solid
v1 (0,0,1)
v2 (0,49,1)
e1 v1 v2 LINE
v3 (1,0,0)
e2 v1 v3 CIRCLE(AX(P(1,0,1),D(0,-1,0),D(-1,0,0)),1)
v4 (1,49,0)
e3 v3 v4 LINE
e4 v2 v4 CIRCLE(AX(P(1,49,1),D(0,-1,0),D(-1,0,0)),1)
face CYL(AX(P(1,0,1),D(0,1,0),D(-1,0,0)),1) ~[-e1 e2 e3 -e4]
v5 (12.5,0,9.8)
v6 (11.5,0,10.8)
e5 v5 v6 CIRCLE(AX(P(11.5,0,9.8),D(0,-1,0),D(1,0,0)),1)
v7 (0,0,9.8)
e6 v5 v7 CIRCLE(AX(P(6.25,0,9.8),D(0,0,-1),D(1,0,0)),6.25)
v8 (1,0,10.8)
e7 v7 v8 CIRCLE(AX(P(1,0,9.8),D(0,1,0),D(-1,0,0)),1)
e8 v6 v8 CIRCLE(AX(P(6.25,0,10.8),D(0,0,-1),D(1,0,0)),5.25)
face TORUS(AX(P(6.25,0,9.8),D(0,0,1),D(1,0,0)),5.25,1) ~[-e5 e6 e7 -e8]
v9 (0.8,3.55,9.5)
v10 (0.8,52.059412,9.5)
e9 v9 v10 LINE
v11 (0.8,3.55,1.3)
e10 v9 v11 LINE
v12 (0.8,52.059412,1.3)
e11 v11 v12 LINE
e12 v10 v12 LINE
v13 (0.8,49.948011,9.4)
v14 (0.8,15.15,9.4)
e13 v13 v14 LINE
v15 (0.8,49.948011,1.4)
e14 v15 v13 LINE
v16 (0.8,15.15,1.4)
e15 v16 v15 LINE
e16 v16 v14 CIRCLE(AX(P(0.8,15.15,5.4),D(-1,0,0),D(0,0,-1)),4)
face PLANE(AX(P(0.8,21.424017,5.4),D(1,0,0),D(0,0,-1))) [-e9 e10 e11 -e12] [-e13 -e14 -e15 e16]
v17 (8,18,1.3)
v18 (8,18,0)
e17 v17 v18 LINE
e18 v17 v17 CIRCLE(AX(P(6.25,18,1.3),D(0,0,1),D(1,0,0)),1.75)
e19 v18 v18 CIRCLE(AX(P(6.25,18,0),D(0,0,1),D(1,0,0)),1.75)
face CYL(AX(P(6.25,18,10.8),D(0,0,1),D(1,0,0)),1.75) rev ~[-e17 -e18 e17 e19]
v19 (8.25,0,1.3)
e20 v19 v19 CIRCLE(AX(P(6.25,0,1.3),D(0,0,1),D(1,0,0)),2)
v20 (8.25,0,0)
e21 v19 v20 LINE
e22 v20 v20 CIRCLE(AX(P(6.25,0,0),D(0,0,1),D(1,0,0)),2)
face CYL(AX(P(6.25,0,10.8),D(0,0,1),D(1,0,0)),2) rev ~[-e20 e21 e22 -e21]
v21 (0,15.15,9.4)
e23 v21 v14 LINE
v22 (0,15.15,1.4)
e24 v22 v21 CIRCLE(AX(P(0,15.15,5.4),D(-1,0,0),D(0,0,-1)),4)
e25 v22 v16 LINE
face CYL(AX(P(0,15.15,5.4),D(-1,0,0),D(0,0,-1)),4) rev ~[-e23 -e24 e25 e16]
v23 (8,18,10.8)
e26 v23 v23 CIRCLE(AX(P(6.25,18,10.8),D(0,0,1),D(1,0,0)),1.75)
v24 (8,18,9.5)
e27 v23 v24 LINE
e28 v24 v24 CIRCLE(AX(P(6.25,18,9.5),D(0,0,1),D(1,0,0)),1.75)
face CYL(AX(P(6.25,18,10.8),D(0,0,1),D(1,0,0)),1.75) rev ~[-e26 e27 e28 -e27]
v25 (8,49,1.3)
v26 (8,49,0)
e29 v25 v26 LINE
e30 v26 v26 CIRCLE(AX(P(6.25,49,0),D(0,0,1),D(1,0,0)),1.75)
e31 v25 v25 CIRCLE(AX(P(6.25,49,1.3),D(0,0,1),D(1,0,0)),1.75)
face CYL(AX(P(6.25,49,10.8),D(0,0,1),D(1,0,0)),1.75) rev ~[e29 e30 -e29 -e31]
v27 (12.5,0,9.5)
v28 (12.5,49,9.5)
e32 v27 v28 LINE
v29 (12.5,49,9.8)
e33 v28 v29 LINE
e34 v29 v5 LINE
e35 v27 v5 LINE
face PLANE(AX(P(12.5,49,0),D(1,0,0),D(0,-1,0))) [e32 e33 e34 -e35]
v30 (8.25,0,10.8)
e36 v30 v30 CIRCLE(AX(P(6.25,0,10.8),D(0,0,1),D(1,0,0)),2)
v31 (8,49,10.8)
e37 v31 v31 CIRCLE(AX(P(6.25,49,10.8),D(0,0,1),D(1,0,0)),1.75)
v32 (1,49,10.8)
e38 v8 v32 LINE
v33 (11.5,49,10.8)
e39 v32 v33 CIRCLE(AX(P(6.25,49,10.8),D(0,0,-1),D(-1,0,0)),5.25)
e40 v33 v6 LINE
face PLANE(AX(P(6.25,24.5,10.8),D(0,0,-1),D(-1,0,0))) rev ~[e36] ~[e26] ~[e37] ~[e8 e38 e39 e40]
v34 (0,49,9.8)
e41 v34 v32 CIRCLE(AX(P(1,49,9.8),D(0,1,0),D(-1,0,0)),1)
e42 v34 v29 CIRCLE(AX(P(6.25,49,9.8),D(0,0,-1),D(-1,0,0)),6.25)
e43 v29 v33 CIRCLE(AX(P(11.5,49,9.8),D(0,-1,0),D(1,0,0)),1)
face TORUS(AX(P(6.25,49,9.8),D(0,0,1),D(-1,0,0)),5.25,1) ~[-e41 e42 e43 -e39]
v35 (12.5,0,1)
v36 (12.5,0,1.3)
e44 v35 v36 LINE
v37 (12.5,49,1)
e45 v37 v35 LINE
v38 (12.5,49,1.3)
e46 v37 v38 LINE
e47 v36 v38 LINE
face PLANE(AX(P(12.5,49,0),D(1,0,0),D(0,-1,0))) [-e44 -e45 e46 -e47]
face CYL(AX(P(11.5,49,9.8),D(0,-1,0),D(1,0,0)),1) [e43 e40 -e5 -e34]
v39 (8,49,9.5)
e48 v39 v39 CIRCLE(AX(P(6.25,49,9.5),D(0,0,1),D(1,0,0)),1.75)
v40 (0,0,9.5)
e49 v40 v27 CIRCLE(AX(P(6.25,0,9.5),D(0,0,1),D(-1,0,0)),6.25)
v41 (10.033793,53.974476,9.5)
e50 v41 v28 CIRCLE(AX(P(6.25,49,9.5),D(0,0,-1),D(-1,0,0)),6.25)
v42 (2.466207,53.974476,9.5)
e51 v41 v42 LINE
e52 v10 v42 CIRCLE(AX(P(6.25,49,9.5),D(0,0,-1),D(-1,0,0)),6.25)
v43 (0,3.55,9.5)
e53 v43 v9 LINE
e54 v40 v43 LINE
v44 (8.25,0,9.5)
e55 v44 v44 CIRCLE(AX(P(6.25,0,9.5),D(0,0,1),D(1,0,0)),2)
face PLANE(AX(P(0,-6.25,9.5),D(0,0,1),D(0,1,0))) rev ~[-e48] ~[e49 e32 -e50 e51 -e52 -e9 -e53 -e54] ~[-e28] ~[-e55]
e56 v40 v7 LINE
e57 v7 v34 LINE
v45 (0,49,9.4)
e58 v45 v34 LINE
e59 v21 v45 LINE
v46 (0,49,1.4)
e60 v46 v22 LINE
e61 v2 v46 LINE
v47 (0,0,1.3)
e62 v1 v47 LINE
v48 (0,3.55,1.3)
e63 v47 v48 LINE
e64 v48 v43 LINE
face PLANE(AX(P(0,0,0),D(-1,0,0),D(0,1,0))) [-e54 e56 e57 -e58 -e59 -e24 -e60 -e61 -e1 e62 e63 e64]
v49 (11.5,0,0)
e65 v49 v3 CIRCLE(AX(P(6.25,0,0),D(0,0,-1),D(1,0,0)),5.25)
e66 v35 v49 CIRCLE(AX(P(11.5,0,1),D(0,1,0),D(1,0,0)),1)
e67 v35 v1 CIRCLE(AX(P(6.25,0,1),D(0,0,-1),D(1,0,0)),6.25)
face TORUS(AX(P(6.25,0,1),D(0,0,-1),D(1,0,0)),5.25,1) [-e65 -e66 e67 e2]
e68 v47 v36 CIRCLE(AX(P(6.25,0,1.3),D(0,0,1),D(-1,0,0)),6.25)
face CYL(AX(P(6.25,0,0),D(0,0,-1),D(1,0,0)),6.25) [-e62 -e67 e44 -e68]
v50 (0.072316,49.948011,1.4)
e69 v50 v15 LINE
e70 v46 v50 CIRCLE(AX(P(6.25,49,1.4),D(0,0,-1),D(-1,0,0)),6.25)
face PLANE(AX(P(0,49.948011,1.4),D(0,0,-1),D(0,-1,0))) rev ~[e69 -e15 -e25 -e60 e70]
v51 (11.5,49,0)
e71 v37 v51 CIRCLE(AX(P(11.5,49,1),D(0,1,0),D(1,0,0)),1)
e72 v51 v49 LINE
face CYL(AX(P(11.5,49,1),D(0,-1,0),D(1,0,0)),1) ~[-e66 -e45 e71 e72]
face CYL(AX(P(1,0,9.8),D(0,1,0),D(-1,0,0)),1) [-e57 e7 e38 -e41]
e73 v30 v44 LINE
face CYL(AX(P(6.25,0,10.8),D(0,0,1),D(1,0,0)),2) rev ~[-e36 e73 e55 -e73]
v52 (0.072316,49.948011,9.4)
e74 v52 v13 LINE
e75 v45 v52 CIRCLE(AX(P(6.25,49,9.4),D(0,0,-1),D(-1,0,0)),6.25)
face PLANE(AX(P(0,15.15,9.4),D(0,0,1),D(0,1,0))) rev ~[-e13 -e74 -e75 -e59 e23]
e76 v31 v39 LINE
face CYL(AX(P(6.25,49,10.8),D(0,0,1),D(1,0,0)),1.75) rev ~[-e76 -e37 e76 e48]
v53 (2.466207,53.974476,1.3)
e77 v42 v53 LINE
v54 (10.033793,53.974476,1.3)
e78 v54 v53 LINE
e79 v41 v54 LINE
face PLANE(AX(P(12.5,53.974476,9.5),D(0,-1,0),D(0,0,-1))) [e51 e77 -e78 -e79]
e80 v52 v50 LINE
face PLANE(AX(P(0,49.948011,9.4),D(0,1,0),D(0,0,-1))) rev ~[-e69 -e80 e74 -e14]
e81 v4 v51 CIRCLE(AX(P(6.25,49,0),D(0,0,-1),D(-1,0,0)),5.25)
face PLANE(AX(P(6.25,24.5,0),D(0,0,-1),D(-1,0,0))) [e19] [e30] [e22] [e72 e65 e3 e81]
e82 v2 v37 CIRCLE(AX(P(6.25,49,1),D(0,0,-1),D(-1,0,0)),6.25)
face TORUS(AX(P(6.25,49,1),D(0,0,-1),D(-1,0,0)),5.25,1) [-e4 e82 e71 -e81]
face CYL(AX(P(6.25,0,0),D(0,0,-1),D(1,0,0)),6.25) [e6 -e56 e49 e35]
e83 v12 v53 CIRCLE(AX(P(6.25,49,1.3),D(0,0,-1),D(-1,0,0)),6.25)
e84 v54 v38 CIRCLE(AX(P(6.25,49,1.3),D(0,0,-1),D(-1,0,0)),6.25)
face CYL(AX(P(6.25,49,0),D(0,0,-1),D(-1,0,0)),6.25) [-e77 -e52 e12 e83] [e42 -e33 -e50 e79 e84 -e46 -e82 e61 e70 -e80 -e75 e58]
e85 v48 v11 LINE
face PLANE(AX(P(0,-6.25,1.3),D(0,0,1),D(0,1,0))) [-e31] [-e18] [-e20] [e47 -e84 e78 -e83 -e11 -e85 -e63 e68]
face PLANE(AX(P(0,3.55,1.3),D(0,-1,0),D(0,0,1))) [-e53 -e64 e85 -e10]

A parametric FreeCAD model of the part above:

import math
import FreeCAD as App
import Part
import Sketcher
from FreeCAD import Vector
Q = App.Units.Quantity


def edges_at(feature, points):
    """Names of the edges that pass closest to the given points."""
    edges = feature.Shape.Edges
    near = lambda p: min(range(len(edges)), key=lambda i: edges[i].distToShape(Part.Vertex(*p))[0])
    return sorted({f"Edge{near(p) + 1}" for p in points})


def add_polygon(sketch, points):
    """Adds a closed chain of lines whose ends are joined by coincident constraints."""
    first, n = sketch.GeometryCount, len(points)
    for a, b in zip(points, points[1:] + points[:1]):
        sketch.addGeometry(Part.LineSegment(App.Vector(*a, 0), App.Vector(*b, 0)), False)
    for i in range(n):
        sketch.addConstraint(Sketcher.Constraint("Coincident", first + i, 2, first + (i + 1) % n, 1))

doc = App.newDocument("Part")
params = doc.addObject("Spreadsheet::Sheet", "Params")
for row, (alias, value) in enumerate([
    ("sketch1_height", "49 mm"),
    ("sketch1_radius", "6.25 mm"),
    ("pad1_length", "10.8 mm"),
    ("fillet_radius", "1 mm"),
    ("fillet2_radius", "1 mm"),
    ("sketch2_height", "8.2 mm"),
    ("pocket1_length", "11.7 mm"),
    ("sketch3_radius", "4 mm"),
    ("sketch3_width", "9.8 mm"),
    ("sketch3_height", "8.2 mm"),
    ("pocket2_length", "11.7 mm"),
    ("sketch4_diameter", "4 mm"),
    ("sketch4_diameter2", "3.5 mm"),
], start=1):
    params.set(f"A{row}", alias)
    params.set(f"B{row}", "=" + value)
    params.setAlias(f"B{row}", alias)

body = doc.addObject("PartDesign::Body", "Body")

# Sketch on XY plane
sketch1 = body.newObject("Sketcher::SketchObject", "Sketch")
sketch1.AttachmentSupport = (doc.getObject("XY_Plane"), [""])
sketch1.MapMode = "FlatFace"
sketch1.addGeometry([
    Part.LineSegment(Vector(0, 49, 0), Vector(0, 0, 0)),
    Part.ArcOfCircle(Part.Circle(Vector(6, 0, 0), Vector(0, 0, 1), 6), math.radians(180), math.radians(360)),
    Part.LineSegment(Vector(12, 0, 0), Vector(12, 49, 0)),
    Part.ArcOfCircle(Part.Circle(Vector(6, 49, 0), Vector(0, 0, 1), 6), math.radians(0), math.radians(180)),
], False)
sketch1.addConstraint([
    Sketcher.Constraint("Tangent", 0, 2, 1, 1),
    Sketcher.Constraint("Tangent", 1, 2, 2, 1),
    Sketcher.Constraint("Tangent", 2, 2, 3, 1),
    Sketcher.Constraint("Tangent", 3, 2, 0, 1),
    Sketcher.Constraint("Vertical", 0),
    Sketcher.Constraint("Vertical", 2),
    Sketcher.Constraint("Coincident", 0, 2, -1, 1),
    Sketcher.Constraint("DistanceY", 0, 2, 0, 1, Q("49 mm")),
    Sketcher.Constraint("Radius", 1, Q("6.25 mm")),
])
sketch1.setExpression("Constraints[7]", "Params.sketch1_height")
sketch1.setExpression("Constraints[8]", "Params.sketch1_radius")
pad1 = body.newObject("PartDesign::Pad", "Pad")
pad1.Profile = sketch1
pad1.setExpression("Length", "Params.pad1_length")
doc.recompute()

fillet = body.newObject("PartDesign::Fillet", "Fillet")
fillet.Base = (pad1, edges_at(pad1, [
    (6.25, 55.25, 10.8),
    (0, 24.5, 10.8),
    (6.25, -6.25, 10.8),
    (12.5, 24.5, 10.8),
]))
fillet.setExpression("Radius", "Params.fillet_radius")
doc.recompute()

fillet2 = body.newObject("PartDesign::Fillet", "Fillet001")
fillet2.Base = (fillet, edges_at(fillet, [
    (0, 24.5, 0),
    (6.25, 55.25, 0),
    (12.5, 24.5, 0),
    (6.25, -6.25, 0),
]))
fillet2.setExpression("Radius", "Params.fillet2_radius")

# Sketch on YZ plane
sketch2 = body.newObject("Sketcher::SketchObject", "Sketch001")
sketch2.AttachmentSupport = (doc.getObject("YZ_Plane"), [""])
sketch2.MapMode = "FlatFace"
sketch2.AttachmentOffset = App.Placement(Vector(0, 0, 12.5), App.Rotation())
add_polygon(sketch2, [(54, 10), (-11, 10), (-11, 1), (54, 1)])  # lines 0-3
sketch2.addConstraint([
    Sketcher.Constraint("Horizontal", 0),
    Sketcher.Constraint("Vertical", 1),
    Sketcher.Constraint("Horizontal", 2),
    Sketcher.Constraint("Vertical", 3),
    Sketcher.Constraint("DistanceY", 1, 2, 1, 1, Q("8.2 mm")),
    Sketcher.Constraint("DistanceY", -1, 1, 0, 2, Q("9.5 mm")),
    Sketcher.Constraint("DistanceX", 0, 2, 0, 1, Q("65.100919 mm")),
    Sketcher.Constraint("DistanceX", 0, 2, -1, 1, Q("11.126443 mm")),
])
sketch2.setExpression("Constraints[8]", "Params.sketch2_height")
pocket1 = body.newObject("PartDesign::Pocket", "Pocket")
pocket1.Profile = sketch2
pocket1.setExpression("Length", "Params.pocket1_length")

# Sketch on YZ plane
sketch3 = body.newObject("Sketcher::SketchObject", "Sketch002")
sketch3.AttachmentSupport = (doc.getObject("YZ_Plane"), [""])
sketch3.MapMode = "FlatFace"
sketch3.addGeometry(Part.LineSegment(Vector(49.9, 1.4, 0), Vector(15.2, 1.4, 0)), False)  # 0
sketch3.addGeometry(Part.ArcOfCircle(Part.Circle(Vector(15.2, 5.4, 0), Vector(0, 0, 1), 4), math.radians(90), math.radians(270)), False)  # 1
sketch3.addGeometry(Part.LineSegment(Vector(15.2, 9.4, 0), Vector(49.9, 9.4, 0)), False)  # 2
sketch3.addGeometry(Part.LineSegment(Vector(49.9, 9.4, 0), Vector(49.9, 1.4, 0)), False)  # 3
add_polygon(sketch3, [(3.5, 1.3), (-6.2, 1.3), (-6.2, 9.5), (3.5, 9.5)])  # lines 4-7
sketch3.addConstraint([
    Sketcher.Constraint("Tangent", 0, 2, 1, 2),
    Sketcher.Constraint("Tangent", 1, 1, 2, 1),
    Sketcher.Constraint("Coincident", 2, 2, 3, 1),
    Sketcher.Constraint("Coincident", 3, 2, 0, 1),
    Sketcher.Constraint("Horizontal", 0),
    Sketcher.Constraint("Horizontal", 2),
    Sketcher.Constraint("Vertical", 3),
    Sketcher.Constraint("Horizontal", 4),
    Sketcher.Constraint("Vertical", 5),
    Sketcher.Constraint("Horizontal", 6),
    Sketcher.Constraint("Vertical", 7),
    Sketcher.Constraint("Radius", 1, Q("4 mm")),
    Sketcher.Constraint("DistanceX", 4, 2, 4, 1, Q("9.8 mm")),
    Sketcher.Constraint("DistanceY", 5, 1, 5, 2, Q("8.2 mm")),
    Sketcher.Constraint("DistanceY", -1, 1, 1, 3, Q("5.4 mm")),
    Sketcher.Constraint("DistanceY", -1, 1, 4, 2, Q("1.3 mm")),
    Sketcher.Constraint("DistanceX", 4, 2, 0, 2, Q("21.4 mm")),
    Sketcher.Constraint("DistanceX", -1, 1, 1, 3, Q("15.15 mm")),
    Sketcher.Constraint("DistanceX", 0, 2, 0, 1, Q("34.798011 mm")),
])
sketch3.setExpression("Constraints[15]", "Params.sketch3_radius")
sketch3.setExpression("Constraints[16]", "Params.sketch3_width")
sketch3.setExpression("Constraints[17]", "Params.sketch3_height")
pocket2 = body.newObject("PartDesign::Pocket", "Pocket001")
pocket2.Profile = sketch3
pocket2.setExpression("Length", "Params.pocket2_length")
pocket2.Reversed = True

# Sketch on XY plane
sketch4 = body.newObject("Sketcher::SketchObject", "Sketch003")
sketch4.AttachmentSupport = (doc.getObject("XY_Plane"), [""])
sketch4.MapMode = "FlatFace"
sketch4.AttachmentOffset = App.Placement(Vector(0, 0, 10.8), App.Rotation())
sketch4.addGeometry([
    Part.Circle(Vector(6.2, 0, 0), Vector(0, 0, 1), 2),
    Part.Circle(Vector(6.2, 49, 0), Vector(0, 0, 1), 1.8),
    Part.Circle(Vector(6.2, 18, 0), Vector(0, 0, 1), 1.8),
], False)
sketch4.addConstraint([
    Sketcher.Constraint("Equal", 1, 2),
    Sketcher.Constraint("PointOnObject", 0, 3, -1),
    Sketcher.Constraint("Vertical", 0, 3, 1, 3),
    Sketcher.Constraint("Vertical", 1, 3, 2, 3),
    Sketcher.Constraint("Diameter", 0, Q("4 mm")),
    Sketcher.Constraint("Diameter", 1, Q("3.5 mm")),
    Sketcher.Constraint("DistanceY", -1, 1, 1, 3, Q("49 mm")),
    Sketcher.Constraint("DistanceY", -1, 1, 2, 3, Q("18 mm")),
    Sketcher.Constraint("DistanceX", -1, 1, 0, 3, Q("6.25 mm")),
])
sketch4.setExpression("Constraints[4]", "Params.sketch4_diameter")
sketch4.setExpression("Constraints[5]", "Params.sketch4_diameter2")
pocket3 = body.newObject("PartDesign::Pocket", "Pocket002")
pocket3.Profile = sketch4
pocket3.Type = "ThroughAll"

doc.recompute()
